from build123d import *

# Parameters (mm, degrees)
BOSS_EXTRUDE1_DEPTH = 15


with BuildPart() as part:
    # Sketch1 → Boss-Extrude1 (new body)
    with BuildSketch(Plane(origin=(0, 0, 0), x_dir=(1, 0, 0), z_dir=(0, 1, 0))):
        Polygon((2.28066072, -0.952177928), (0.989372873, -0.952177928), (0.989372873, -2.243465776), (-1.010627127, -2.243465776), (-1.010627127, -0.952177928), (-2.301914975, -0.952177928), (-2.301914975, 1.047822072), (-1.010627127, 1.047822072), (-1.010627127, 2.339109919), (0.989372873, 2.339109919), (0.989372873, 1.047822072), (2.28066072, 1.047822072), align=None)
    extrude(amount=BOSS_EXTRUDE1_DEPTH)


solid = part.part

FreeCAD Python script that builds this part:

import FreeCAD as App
import Part
import Sketcher
Q = App.Units.Quantity


def add_polygon(sketch, points):
    """Adds a closed chain of lines whose ends are joined by coincident constraints."""
    first, n = sketch.GeometryCount, len(points)
    for a, b in zip(points, points[1:] + points[:1]):
        sketch.addGeometry(Part.LineSegment(App.Vector(*a, 0), App.Vector(*b, 0)), False)
    for i in range(n):
        sketch.addConstraint(Sketcher.Constraint("Coincident", first + i, 2, first + (i + 1) % n, 1))

doc = App.newDocument("Part")
body = doc.addObject("PartDesign::Body", "Body")

# Sketch on XZ plane
sketch1 = body.newObject("Sketcher::SketchObject", "Sketch")
sketch1.AttachmentSupport = (doc.getObject("XZ_Plane"), [""])
sketch1.MapMode = "FlatFace"
add_polygon(sketch1, [(0.989373, 0.952178), (2.280661, 0.952178), (2.280661, -1.047822), (0.989373, -1.047822), (0.989373, -2.33911), (-1.010627, -2.33911), (-1.010627, -1.047822), (-2.301915, -1.047822), (-2.301915, 0.952178), (-1.010627, 0.952178), (-1.010627, 2.243466), (0.989373, 2.243466)])  # lines 0-11
sketch1.addConstraint(Sketcher.Constraint("Horizontal", 0))
sketch1.addConstraint(Sketcher.Constraint("Vertical", 1))
sketch1.addConstraint(Sketcher.Constraint("Horizontal", 2))
sketch1.addConstraint(Sketcher.Constraint("Vertical", 3))
sketch1.addConstraint(Sketcher.Constraint("Horizontal", 4))
sketch1.addConstraint(Sketcher.Constraint("Vertical", 5))
sketch1.addConstraint(Sketcher.Constraint("Horizontal", 6))
sketch1.addConstraint(Sketcher.Constraint("Vertical", 7))
sketch1.addConstraint(Sketcher.Constraint("Horizontal", 8))
sketch1.addConstraint(Sketcher.Constraint("Vertical", 9))
sketch1.addConstraint(Sketcher.Constraint("Horizontal", 10))
sketch1.addConstraint(Sketcher.Constraint("Vertical", 11))
sketch1.addConstraint(Sketcher.Constraint("Horizontal", 2, 2, 5, 2))
sketch1.addConstraint(Sketcher.Constraint("Horizontal", 0, 2, 7, 2))
sketch1.addConstraint(Sketcher.Constraint("Vertical", 5, 2, 8, 2))
sketch1.addConstraint(Sketcher.Constraint("Vertical", 3, 2, 10, 2))
sketch1.addConstraint(Sketcher.Constraint("Equal", 2, 6))
sketch1.addConstraint(Sketcher.Constraint("Equal", 10, 1))
sketch1.addConstraint(Sketcher.Constraint("Equal", 8, 3))
sketch1.addConstraint(Sketcher.Constraint("Equal", 5, 9))
sketch1.addConstraint(Sketcher.Constraint("DistanceX", 4, 2, 4, 1, Q("2 mm")))
sketch1.addConstraint(Sketcher.Constraint("DistanceX", 0, 1, 0, 2, Q("1.291288 mm")))
sketch1.addConstraint(Sketcher.Constraint("DistanceX", -1, 1, 0, 2, Q("2.280661 mm")))
sketch1.addConstraint(Sketcher.Constraint("DistanceY", 3, 2, -1, 1, Q("2.33911 mm")))
pad1 = body.newObject("PartDesign::Pad", "Pad")
pad1.Profile = sketch1
pad1.Length = 15
pad1.Reversed = True

doc.recompute()
